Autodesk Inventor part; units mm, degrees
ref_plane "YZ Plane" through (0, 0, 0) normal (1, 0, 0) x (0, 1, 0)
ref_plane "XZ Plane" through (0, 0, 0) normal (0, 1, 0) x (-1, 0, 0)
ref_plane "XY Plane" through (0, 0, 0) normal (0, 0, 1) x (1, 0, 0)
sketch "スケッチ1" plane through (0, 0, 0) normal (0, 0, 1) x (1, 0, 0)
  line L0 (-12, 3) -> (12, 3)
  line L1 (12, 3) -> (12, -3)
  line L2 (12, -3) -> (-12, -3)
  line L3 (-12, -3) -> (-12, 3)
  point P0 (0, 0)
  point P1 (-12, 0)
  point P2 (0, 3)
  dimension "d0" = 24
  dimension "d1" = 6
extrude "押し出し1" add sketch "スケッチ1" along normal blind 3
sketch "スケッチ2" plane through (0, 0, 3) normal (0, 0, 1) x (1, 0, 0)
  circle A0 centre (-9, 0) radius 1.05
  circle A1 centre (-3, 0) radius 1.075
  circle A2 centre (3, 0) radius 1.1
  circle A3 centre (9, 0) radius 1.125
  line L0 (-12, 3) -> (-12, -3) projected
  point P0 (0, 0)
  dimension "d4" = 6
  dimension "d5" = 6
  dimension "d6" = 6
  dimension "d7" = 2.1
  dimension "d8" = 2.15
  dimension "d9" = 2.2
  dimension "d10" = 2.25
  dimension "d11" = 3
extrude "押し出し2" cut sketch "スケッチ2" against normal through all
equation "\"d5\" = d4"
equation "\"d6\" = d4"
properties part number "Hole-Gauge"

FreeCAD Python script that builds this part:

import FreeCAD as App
import Part
import Sketcher

doc = App.newDocument("Part")
body = doc.addObject("PartDesign::Body", "Body")

# Sketch on XY plane
sketch1 = doc.addObject("Sketcher::SketchObject", "Sketch")
body.addObject(sketch1)
sketch1.AttachmentSupport = (doc.XY_Plane, [""])
sketch1.MapMode = "FlatFace"
sketch1.addGeometry([
    Part.LineSegment(App.Vector(12, 3, 0), App.Vector(-12, 3, 0)),
    Part.LineSegment(App.Vector(-12, 3, 0), App.Vector(-12, -3, 0)),
    Part.LineSegment(App.Vector(-12, -3, 0), App.Vector(12, -3, 0)),
    Part.LineSegment(App.Vector(12, -3, 0), App.Vector(12, 3, 0)),
], False)
sketch1.addConstraint([
    Sketcher.Constraint("Coincident", 0, 2, 1, 1),
    Sketcher.Constraint("Coincident", 1, 2, 2, 1),
    Sketcher.Constraint("Coincident", 2, 2, 3, 1),
    Sketcher.Constraint("Coincident", 3, 2, 0, 1),
    Sketcher.Constraint("Horizontal", 0),
    Sketcher.Constraint("Vertical", 1),
    Sketcher.Constraint("Horizontal", 2),
    Sketcher.Constraint("Vertical", 3),
    Sketcher.Constraint("Symmetric", 0, 2, 2, 2, -1, 1),
    Sketcher.Constraint("DistanceX", 0, 2, 0, 1, 24.0),
    Sketcher.Constraint("DistanceY", 1, 2, 1, 1, 6.0),
])
pad1 = doc.addObject("PartDesign::Pad", "Pad")
body.addObject(pad1)
pad1.Profile = sketch1
pad1.Length = 3

# Sketch on XY plane
sketch2 = doc.addObject("Sketcher::SketchObject", "Sketch001")
body.addObject(sketch2)
sketch2.AttachmentSupport = (doc.XY_Plane, [""])
sketch2.MapMode = "FlatFace"
sketch2.AttachmentOffset = App.Placement(App.Vector(0, 0, 3), App.Rotation())
sketch2.addGeometry([
    Part.Circle(App.Vector(-9, 0, 0), App.Vector(0, 0, 1), 1.1),
    Part.Circle(App.Vector(-3, 0, 0), App.Vector(0, 0, 1), 1.1),
    Part.Circle(App.Vector(3, 0, 0), App.Vector(0, 0, 1), 1.1),
    Part.Circle(App.Vector(9, 0, 0), App.Vector(0, 0, 1), 1.1),
], False)
sketch2.addConstraint([
    Sketcher.Constraint("Symmetric", 1, 3, 2, 3, -1, 1),
    Sketcher.Constraint("Symmetric", 0, 3, 3, 3, -1, 1),
    Sketcher.Constraint("PointOnObject", 0, 3, -1),
    Sketcher.Constraint("PointOnObject", 1, 3, -1),
    Sketcher.Constraint("Diameter", 0, 2.1),
    Sketcher.Constraint("Diameter", 2, 2.2),
    Sketcher.Constraint("Diameter", 1, 2.15),
    Sketcher.Constraint("Diameter", 3, 2.25),
    Sketcher.Constraint("DistanceX", 1, 3, -1, 1, 3.0),
    Sketcher.Constraint("DistanceX", 0, 3, 1, 3, 6.0),
])
pocket1 = doc.addObject("PartDesign::Pocket", "Pocket")
body.addObject(pocket1)
pocket1.Profile = sketch2
pocket1.Type = "ThroughAll"

doc.recompute()
